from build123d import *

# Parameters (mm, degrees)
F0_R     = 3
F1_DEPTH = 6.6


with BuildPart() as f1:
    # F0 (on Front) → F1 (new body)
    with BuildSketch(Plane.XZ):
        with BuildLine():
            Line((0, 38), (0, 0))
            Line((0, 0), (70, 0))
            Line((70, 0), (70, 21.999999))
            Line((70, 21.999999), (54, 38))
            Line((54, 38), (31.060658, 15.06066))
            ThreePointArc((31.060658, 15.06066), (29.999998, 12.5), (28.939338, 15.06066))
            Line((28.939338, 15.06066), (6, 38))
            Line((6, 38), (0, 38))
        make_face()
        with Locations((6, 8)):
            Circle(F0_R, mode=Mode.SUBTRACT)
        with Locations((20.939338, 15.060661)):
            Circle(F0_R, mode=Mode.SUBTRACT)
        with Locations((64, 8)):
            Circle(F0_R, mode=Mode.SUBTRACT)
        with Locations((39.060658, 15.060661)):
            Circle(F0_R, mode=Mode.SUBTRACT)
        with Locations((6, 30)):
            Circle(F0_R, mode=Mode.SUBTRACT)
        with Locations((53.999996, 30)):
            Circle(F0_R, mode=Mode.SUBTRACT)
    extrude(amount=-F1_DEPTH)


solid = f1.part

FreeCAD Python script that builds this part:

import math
import FreeCAD as App
import Part
import Sketcher
Q = App.Units.Quantity

doc = App.newDocument("Part")
body = doc.addObject("PartDesign::Body", "Body")

# Sketch on XZ plane
sketch1 = body.newObject("Sketcher::SketchObject", "Sketch")
sketch1.AttachmentSupport = (doc.getObject("XZ_Plane"), [""])
sketch1.MapMode = "FlatFace"
sketch1.addGeometry(Part.LineSegment(App.Vector(0, 38, 0), App.Vector(0, 0, 0)), False)
sketch1.addGeometry(Part.LineSegment(App.Vector(0, 0, 0), App.Vector(70, 0, 0)), False)
sketch1.addGeometry(Part.LineSegment(App.Vector(70, 0, 0), App.Vector(70, 22, 0)), False)
sketch1.addGeometry(Part.LineSegment(App.Vector(70, 22, 0), App.Vector(54, 38, 0)), False)
sketch1.addGeometry(Part.LineSegment(App.Vector(54, 38, 0), App.Vector(31.1, 15.1, 0)), False)
sketch1.addGeometry(Part.ArcOfCircle(Part.Circle(App.Vector(30, 14, 0), App.Vector(0, 0, 1), 1.5), math.radians(135), math.radians(405)), False)
sketch1.addGeometry(Part.LineSegment(App.Vector(28.9, 15.1, 0), App.Vector(6, 38, 0)), False)
sketch1.addGeometry(Part.LineSegment(App.Vector(6, 38, 0), App.Vector(0, 38, 0)), False)
sketch1.addGeometry(Part.Circle(App.Vector(6, 8, 0), App.Vector(0, 0, 1), 3), False)
sketch1.addGeometry(Part.Circle(App.Vector(20.9, 15.1, 0), App.Vector(0, 0, 1), 3), False)
sketch1.addGeometry(Part.Circle(App.Vector(64, 8, 0), App.Vector(0, 0, 1), 3), False)
sketch1.addGeometry(Part.Circle(App.Vector(39.1, 15.1, 0), App.Vector(0, 0, 1), 3), False)
sketch1.addGeometry(Part.Circle(App.Vector(6, 30, 0), App.Vector(0, 0, 1), 3), False)
sketch1.addGeometry(Part.Circle(App.Vector(54, 30, 0), App.Vector(0, 0, 1), 3), False)
sketch1.addConstraint(Sketcher.Constraint("Coincident", 0, 2, 1, 1))
sketch1.addConstraint(Sketcher.Constraint("Coincident", 1, 2, 2, 1))
sketch1.addConstraint(Sketcher.Constraint("Coincident", 2, 2, 3, 1))
sketch1.addConstraint(Sketcher.Constraint("Coincident", 3, 2, 4, 1))
sketch1.addConstraint(Sketcher.Constraint("Coincident", 4, 2, 5, 2))
sketch1.addConstraint(Sketcher.Constraint("Coincident", 5, 1, 6, 1))
sketch1.addConstraint(Sketcher.Constraint("Coincident", 6, 2, 7, 1))
sketch1.addConstraint(Sketcher.Constraint("Coincident", 7, 2, 0, 1))
sketch1.addConstraint(Sketcher.Constraint("Vertical", 0))
sketch1.addConstraint(Sketcher.Constraint("Horizontal", 1))
sketch1.addConstraint(Sketcher.Constraint("Vertical", 2))
sketch1.addConstraint(Sketcher.Constraint("Horizontal", 7))
sketch1.addConstraint(Sketcher.Constraint("Coincident", 0, 2, -1, 1))
sketch1.addConstraint(Sketcher.Constraint("Equal", 8, 9))
sketch1.addConstraint(Sketcher.Constraint("Equal", 9, 10))
sketch1.addConstraint(Sketcher.Constraint("Equal", 10, 11))
sketch1.addConstraint(Sketcher.Constraint("Equal", 11, 12))
sketch1.addConstraint(Sketcher.Constraint("Equal", 12, 13))
sketch1.addConstraint(Sketcher.Constraint("Perpendicular", 3, 4))
sketch1.addConstraint(Sketcher.Constraint("Perpendicular", 4, 6))
sketch1.addConstraint(Sketcher.Constraint("Horizontal", 8, 3, 10, 3))
sketch1.addConstraint(Sketcher.Constraint("Horizontal", 9, 3, 11, 3))
sketch1.addConstraint(Sketcher.Constraint("Horizontal", 12, 3, 13, 3))
sketch1.addConstraint(Sketcher.Constraint("Horizontal", 11, 3, 4, 2))
sketch1.addConstraint(Sketcher.Constraint("Horizontal", 4, 2, 5, 1))
sketch1.addConstraint(Sketcher.Constraint("Horizontal", 3, 2, 6, 2))
sketch1.addConstraint(Sketcher.Constraint("Vertical", 8, 3, 12, 3))
sketch1.addConstraint(Sketcher.Constraint("Vertical", 12, 3, 6, 2))
sketch1.addConstraint(Sketcher.Constraint("Diameter", 8, Q("6 mm")))
sketch1.addConstraint(Sketcher.Constraint("Radius", 5, Q("1.5 mm")))
sketch1.addConstraint(Sketcher.Constraint("DistanceX", 1, 1, 1, 2, Q("70 mm")))
sketch1.addConstraint(Sketcher.Constraint("DistanceX", 7, 2, 7, 1, Q("6 mm")))
sketch1.addConstraint(Sketcher.Constraint("DistanceY", 0, 2, 0, 1, Q("38 mm")))
sketch1.addConstraint(Sketcher.Constraint("DistanceY", 2, 1, 2, 2, Q("21.999999 mm")))
sketch1.addConstraint(Sketcher.Constraint("Angle", 3, Q("134.999998 deg")))
sketch1.addConstraint(Sketcher.Constraint("DistanceY", -1, 1, 5, 3, Q("14 mm")))
sketch1.addConstraint(Sketcher.Constraint("DistanceY", -1, 1, 8, 3, Q("8 mm")))
sketch1.addConstraint(Sketcher.Constraint("DistanceX", -1, 1, 10, 3, Q("64 mm")))
sketch1.addConstraint(Sketcher.Constraint("DistanceY", -1, 1, 12, 3, Q("30 mm")))
sketch1.addConstraint(Sketcher.Constraint("DistanceX", 5, 3, 13, 3, Q("23.999998 mm")))
sketch1.addConstraint(Sketcher.Constraint("DistanceX", 4, 2, 11, 3, Q("8 mm")))
sketch1.addConstraint(Sketcher.Constraint("DistanceX", 9, 3, 5, 1, Q("8 mm")))
pad1 = body.newObject("PartDesign::Pad", "Pad")
pad1.Profile = sketch1
pad1.Length = 6.6
pad1.Reversed = True

doc.recompute()
